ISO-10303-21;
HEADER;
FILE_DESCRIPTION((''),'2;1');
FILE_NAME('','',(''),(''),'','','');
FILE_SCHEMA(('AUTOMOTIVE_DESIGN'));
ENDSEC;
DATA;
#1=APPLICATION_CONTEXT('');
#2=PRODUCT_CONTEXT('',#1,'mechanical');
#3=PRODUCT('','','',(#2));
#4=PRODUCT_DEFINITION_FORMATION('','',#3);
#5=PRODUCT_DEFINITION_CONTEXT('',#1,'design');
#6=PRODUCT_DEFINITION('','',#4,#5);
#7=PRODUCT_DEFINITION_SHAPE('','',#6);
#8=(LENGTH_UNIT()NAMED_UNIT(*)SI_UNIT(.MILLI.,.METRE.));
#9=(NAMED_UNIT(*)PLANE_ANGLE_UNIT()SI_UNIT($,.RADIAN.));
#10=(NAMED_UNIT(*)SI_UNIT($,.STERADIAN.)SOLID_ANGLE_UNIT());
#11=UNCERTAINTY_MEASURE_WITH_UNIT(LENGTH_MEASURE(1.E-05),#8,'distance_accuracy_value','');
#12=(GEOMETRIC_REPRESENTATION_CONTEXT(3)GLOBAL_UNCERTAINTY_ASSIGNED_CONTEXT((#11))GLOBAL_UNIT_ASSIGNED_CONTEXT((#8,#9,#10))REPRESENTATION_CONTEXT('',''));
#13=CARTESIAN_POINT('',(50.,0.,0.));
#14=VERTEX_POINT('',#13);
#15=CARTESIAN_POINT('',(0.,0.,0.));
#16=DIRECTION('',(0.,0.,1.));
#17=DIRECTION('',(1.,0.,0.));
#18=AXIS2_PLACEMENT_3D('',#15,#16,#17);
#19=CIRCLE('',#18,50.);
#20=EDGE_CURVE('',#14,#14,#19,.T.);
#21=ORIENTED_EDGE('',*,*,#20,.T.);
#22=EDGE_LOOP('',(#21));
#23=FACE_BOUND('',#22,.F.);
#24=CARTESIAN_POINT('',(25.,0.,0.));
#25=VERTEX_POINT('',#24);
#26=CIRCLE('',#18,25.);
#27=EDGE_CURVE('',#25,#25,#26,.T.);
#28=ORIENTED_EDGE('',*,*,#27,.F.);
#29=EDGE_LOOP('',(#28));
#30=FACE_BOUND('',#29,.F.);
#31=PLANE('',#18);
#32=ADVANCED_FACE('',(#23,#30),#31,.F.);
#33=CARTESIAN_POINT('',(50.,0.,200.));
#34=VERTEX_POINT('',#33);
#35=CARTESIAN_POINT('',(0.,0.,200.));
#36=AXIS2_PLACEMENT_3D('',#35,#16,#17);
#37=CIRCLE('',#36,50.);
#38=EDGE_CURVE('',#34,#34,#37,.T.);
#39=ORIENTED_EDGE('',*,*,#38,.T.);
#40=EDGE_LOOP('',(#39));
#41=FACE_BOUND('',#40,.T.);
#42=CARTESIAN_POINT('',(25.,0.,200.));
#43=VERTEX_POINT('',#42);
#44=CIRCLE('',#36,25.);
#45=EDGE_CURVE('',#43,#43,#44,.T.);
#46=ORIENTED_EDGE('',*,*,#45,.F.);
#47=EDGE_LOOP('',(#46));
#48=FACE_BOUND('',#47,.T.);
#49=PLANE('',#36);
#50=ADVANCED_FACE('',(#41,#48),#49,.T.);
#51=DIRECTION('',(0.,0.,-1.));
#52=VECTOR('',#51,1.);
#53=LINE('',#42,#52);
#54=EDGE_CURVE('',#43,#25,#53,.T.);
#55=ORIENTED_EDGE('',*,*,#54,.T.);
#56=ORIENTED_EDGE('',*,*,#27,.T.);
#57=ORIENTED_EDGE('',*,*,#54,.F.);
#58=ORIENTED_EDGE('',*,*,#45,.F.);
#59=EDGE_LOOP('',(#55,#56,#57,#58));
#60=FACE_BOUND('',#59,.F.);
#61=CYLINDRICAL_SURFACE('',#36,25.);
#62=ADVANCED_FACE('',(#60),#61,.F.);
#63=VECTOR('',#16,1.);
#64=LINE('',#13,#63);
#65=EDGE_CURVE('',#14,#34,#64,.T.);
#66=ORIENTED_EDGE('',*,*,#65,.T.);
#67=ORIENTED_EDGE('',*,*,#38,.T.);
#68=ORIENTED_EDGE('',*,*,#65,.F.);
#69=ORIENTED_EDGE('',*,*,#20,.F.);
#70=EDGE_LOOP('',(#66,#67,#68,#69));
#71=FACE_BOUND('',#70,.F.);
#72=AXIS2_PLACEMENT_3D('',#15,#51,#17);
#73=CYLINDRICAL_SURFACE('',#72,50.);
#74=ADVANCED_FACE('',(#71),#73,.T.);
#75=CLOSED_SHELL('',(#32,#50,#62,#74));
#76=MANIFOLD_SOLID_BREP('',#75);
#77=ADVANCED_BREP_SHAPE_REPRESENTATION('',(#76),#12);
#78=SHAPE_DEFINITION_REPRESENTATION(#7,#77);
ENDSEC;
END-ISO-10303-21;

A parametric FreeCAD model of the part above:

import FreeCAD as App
import Part
import Sketcher

V = App.Vector
Q = App.Units.Quantity

doc = App.newDocument("Part")
body = doc.addObject("PartDesign::Body", "Body")

sketch1 = doc.addObject("Sketcher::SketchObject", "Sketch")
body.addObject(sketch1)
sketch1.AttachmentSupport = (doc.XY_Plane, [""])
sketch1.MapMode = "FlatFace"
sketch1.addGeometry(Part.Circle(V(0, 0, 0), V(0, 0, 1), 50), False)
sketch1.addConstraint([
    Sketcher.Constraint("Coincident", 0, 3, -1, 1),
    Sketcher.Constraint("Diameter", 0, Q("100 mm")),
])
pad1 = doc.addObject("PartDesign::Pad", "Pad")
body.addObject(pad1)
pad1.Profile = sketch1
pad1.Length = 200

sketch2 = doc.addObject("Sketcher::SketchObject", "Sketch001")
body.addObject(sketch2)
sketch2.AttachmentSupport = (doc.XY_Plane, [""])
sketch2.MapMode = "FlatFace"
sketch2.AttachmentOffset = App.Placement(V(0, 0, 200), App.Rotation())
sketch2.addGeometry(Part.Circle(V(0, 0, 0), V(0, 0, 1), 25), False)
sketch2.addConstraint([
    Sketcher.Constraint("Coincident", 0, 3, -1, 1),
    Sketcher.Constraint("Diameter", 0, Q("50 mm")),
])
pocket1 = doc.addObject("PartDesign::Pocket", "Pocket")
body.addObject(pocket1)
pocket1.Profile = sketch2
pocket1.Type = "ThroughAll"

doc.recompute()
